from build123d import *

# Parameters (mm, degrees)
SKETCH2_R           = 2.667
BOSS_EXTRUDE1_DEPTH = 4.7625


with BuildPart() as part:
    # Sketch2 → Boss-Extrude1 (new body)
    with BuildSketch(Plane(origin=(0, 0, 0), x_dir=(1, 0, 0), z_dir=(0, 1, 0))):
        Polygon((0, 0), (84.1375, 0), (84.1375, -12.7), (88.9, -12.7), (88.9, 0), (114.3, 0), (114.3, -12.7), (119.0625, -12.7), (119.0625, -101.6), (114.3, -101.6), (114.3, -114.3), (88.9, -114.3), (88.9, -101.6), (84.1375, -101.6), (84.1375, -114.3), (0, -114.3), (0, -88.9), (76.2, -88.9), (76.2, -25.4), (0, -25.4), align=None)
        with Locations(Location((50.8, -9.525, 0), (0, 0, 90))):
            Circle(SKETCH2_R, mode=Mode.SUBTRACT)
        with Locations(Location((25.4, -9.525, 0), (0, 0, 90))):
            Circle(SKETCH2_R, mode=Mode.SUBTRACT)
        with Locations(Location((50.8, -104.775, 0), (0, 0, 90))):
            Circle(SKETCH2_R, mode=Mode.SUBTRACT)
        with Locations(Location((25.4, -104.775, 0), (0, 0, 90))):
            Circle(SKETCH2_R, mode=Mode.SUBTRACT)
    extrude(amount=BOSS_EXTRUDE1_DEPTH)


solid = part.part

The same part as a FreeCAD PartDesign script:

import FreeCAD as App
import Part
import Sketcher

V = App.Vector
Q = App.Units.Quantity


def add_polygon(sketch, points):
    """Adds a closed chain of lines whose ends are joined by coincident constraints."""
    first, n = sketch.GeometryCount, len(points)
    for a, b in zip(points, points[1:] + points[:1]):
        sketch.addGeometry(Part.LineSegment(App.Vector(*a, 0), App.Vector(*b, 0)), False)
    for i in range(n):
        sketch.addConstraint(Sketcher.Constraint("Coincident", first + i, 2, first + (i + 1) % n, 1))

doc = App.newDocument("Part")
body = doc.addObject("PartDesign::Body", "Body")

sketch1 = doc.addObject("Sketcher::SketchObject", "Sketch")
body.addObject(sketch1)
sketch1.AttachmentSupport = (doc.XZ_Plane, [""])
sketch1.MapMode = "FlatFace"
add_polygon(sketch1, [(84.1375, 0), (0, 0), (0, 25.4), (76.2, 25.4), (76.2, 88.9), (0, 88.9), (0, 114.3), (84.1375, 114.3), (84.1375, 101.6), (88.9, 101.6), (88.9, 114.3), (114.3, 114.3), (114.3, 101.6), (119.0625, 101.6), (119.0625, 12.7), (114.3, 12.7), (114.3, 0), (88.9, 0), (88.9, 12.7), (84.1375, 12.7)])
sketch1.addGeometry(Part.Circle(V(50.8, 104.775, 0), V(0, 0, 1), 2.667), False)
sketch1.addGeometry(Part.Circle(V(25.4, 104.775, 0), V(0, 0, 1), 2.667), False)
sketch1.addGeometry(Part.Circle(V(50.8, 9.525, 0), V(0, 0, 1), 2.667), False)
sketch1.addGeometry(Part.Circle(V(25.4, 9.525, 0), V(0, 0, 1), 2.667), False)
sketch1.addConstraint([
    Sketcher.Constraint("Horizontal", 0),
    Sketcher.Constraint("Vertical", 1),
    Sketcher.Constraint("Horizontal", 2),
    Sketcher.Constraint("Vertical", 3),
    Sketcher.Constraint("Horizontal", 4),
    Sketcher.Constraint("Vertical", 5),
    Sketcher.Constraint("Horizontal", 6),
    Sketcher.Constraint("Vertical", 7),
    Sketcher.Constraint("Horizontal", 8),
    Sketcher.Constraint("Vertical", 9),
    Sketcher.Constraint("Horizontal", 10),
    Sketcher.Constraint("Vertical", 11),
    Sketcher.Constraint("Horizontal", 12),
    Sketcher.Constraint("Vertical", 13),
    Sketcher.Constraint("Horizontal", 14),
    Sketcher.Constraint("Vertical", 15),
    Sketcher.Constraint("Horizontal", 16),
    Sketcher.Constraint("Vertical", 17),
    Sketcher.Constraint("Horizontal", 18),
    Sketcher.Constraint("Vertical", 19),
    Sketcher.Constraint("Coincident", 0, 2, -1, 1),
    Sketcher.Constraint("Equal", 20, 21),
    Sketcher.Constraint("Equal", 21, 22),
    Sketcher.Constraint("Equal", 22, 23),
    Sketcher.Constraint("PointOnObject", 4, 2, -2),
    Sketcher.Constraint("PointOnObject", 15, 2, -1),
    Sketcher.Constraint("Horizontal", 20, 3, 21, 3),
    Sketcher.Constraint("Horizontal", 22, 3, 23, 3),
    Sketcher.Constraint("Horizontal", 6, 2, 9, 2),
    Sketcher.Constraint("Horizontal", 8, 2, 11, 2),
    Sketcher.Constraint("Horizontal", 14, 2, 17, 2),
    Sketcher.Constraint("Vertical", 20, 3, 22, 3),
    Sketcher.Constraint("Vertical", 21, 3, 23, 3),
    Sketcher.Constraint("Vertical", 11, 2, 14, 2),
    Sketcher.Constraint("Vertical", 9, 2, 16, 2),
    Sketcher.Constraint("Vertical", 7, 2, 18, 2),
    Sketcher.Constraint("Equal", 8, 12),
    Sketcher.Constraint("Equal", 16, 1),
    Sketcher.Constraint("Equal", 1, 5),
    Sketcher.Constraint("Equal", 11, 15),
    Sketcher.Constraint("Diameter", 20, Q("0.21 in")),
    Sketcher.Constraint("DistanceX", 2, 1, 2, 2, Q("3 in")),
    Sketcher.Constraint("DistanceX", 10, 1, 10, 2, Q("1 in")),
    Sketcher.Constraint("DistanceY", 3, 1, 3, 2, Q("2.5 in")),
    Sketcher.Constraint("DistanceY", 7, 2, 7, 1, Q("0.5 in")),
    Sketcher.Constraint("DistanceX", -1, 1, 20, 3, Q("2 in")),
    Sketcher.Constraint("DistanceX", -1, 1, 21, 3, Q("1 in")),
    Sketcher.Constraint("DistanceX", -1, 1, 8, 2, Q("3.5 in")),
    Sketcher.Constraint("DistanceX", 0, 2, 0, 1, Q("3.3125 in")),
    Sketcher.Constraint("DistanceY", 22, 3, 20, 3, Q("3.75 in")),
    Sketcher.Constraint("DistanceY", -1, 1, 20, 3, Q("4.125 in")),
])
pad1 = doc.addObject("PartDesign::Pad", "Pad")
body.addObject(pad1)
pad1.Profile = sketch1
pad1.Length = Q("0.1875 in")
pad1.Reversed = True

doc.recompute()
